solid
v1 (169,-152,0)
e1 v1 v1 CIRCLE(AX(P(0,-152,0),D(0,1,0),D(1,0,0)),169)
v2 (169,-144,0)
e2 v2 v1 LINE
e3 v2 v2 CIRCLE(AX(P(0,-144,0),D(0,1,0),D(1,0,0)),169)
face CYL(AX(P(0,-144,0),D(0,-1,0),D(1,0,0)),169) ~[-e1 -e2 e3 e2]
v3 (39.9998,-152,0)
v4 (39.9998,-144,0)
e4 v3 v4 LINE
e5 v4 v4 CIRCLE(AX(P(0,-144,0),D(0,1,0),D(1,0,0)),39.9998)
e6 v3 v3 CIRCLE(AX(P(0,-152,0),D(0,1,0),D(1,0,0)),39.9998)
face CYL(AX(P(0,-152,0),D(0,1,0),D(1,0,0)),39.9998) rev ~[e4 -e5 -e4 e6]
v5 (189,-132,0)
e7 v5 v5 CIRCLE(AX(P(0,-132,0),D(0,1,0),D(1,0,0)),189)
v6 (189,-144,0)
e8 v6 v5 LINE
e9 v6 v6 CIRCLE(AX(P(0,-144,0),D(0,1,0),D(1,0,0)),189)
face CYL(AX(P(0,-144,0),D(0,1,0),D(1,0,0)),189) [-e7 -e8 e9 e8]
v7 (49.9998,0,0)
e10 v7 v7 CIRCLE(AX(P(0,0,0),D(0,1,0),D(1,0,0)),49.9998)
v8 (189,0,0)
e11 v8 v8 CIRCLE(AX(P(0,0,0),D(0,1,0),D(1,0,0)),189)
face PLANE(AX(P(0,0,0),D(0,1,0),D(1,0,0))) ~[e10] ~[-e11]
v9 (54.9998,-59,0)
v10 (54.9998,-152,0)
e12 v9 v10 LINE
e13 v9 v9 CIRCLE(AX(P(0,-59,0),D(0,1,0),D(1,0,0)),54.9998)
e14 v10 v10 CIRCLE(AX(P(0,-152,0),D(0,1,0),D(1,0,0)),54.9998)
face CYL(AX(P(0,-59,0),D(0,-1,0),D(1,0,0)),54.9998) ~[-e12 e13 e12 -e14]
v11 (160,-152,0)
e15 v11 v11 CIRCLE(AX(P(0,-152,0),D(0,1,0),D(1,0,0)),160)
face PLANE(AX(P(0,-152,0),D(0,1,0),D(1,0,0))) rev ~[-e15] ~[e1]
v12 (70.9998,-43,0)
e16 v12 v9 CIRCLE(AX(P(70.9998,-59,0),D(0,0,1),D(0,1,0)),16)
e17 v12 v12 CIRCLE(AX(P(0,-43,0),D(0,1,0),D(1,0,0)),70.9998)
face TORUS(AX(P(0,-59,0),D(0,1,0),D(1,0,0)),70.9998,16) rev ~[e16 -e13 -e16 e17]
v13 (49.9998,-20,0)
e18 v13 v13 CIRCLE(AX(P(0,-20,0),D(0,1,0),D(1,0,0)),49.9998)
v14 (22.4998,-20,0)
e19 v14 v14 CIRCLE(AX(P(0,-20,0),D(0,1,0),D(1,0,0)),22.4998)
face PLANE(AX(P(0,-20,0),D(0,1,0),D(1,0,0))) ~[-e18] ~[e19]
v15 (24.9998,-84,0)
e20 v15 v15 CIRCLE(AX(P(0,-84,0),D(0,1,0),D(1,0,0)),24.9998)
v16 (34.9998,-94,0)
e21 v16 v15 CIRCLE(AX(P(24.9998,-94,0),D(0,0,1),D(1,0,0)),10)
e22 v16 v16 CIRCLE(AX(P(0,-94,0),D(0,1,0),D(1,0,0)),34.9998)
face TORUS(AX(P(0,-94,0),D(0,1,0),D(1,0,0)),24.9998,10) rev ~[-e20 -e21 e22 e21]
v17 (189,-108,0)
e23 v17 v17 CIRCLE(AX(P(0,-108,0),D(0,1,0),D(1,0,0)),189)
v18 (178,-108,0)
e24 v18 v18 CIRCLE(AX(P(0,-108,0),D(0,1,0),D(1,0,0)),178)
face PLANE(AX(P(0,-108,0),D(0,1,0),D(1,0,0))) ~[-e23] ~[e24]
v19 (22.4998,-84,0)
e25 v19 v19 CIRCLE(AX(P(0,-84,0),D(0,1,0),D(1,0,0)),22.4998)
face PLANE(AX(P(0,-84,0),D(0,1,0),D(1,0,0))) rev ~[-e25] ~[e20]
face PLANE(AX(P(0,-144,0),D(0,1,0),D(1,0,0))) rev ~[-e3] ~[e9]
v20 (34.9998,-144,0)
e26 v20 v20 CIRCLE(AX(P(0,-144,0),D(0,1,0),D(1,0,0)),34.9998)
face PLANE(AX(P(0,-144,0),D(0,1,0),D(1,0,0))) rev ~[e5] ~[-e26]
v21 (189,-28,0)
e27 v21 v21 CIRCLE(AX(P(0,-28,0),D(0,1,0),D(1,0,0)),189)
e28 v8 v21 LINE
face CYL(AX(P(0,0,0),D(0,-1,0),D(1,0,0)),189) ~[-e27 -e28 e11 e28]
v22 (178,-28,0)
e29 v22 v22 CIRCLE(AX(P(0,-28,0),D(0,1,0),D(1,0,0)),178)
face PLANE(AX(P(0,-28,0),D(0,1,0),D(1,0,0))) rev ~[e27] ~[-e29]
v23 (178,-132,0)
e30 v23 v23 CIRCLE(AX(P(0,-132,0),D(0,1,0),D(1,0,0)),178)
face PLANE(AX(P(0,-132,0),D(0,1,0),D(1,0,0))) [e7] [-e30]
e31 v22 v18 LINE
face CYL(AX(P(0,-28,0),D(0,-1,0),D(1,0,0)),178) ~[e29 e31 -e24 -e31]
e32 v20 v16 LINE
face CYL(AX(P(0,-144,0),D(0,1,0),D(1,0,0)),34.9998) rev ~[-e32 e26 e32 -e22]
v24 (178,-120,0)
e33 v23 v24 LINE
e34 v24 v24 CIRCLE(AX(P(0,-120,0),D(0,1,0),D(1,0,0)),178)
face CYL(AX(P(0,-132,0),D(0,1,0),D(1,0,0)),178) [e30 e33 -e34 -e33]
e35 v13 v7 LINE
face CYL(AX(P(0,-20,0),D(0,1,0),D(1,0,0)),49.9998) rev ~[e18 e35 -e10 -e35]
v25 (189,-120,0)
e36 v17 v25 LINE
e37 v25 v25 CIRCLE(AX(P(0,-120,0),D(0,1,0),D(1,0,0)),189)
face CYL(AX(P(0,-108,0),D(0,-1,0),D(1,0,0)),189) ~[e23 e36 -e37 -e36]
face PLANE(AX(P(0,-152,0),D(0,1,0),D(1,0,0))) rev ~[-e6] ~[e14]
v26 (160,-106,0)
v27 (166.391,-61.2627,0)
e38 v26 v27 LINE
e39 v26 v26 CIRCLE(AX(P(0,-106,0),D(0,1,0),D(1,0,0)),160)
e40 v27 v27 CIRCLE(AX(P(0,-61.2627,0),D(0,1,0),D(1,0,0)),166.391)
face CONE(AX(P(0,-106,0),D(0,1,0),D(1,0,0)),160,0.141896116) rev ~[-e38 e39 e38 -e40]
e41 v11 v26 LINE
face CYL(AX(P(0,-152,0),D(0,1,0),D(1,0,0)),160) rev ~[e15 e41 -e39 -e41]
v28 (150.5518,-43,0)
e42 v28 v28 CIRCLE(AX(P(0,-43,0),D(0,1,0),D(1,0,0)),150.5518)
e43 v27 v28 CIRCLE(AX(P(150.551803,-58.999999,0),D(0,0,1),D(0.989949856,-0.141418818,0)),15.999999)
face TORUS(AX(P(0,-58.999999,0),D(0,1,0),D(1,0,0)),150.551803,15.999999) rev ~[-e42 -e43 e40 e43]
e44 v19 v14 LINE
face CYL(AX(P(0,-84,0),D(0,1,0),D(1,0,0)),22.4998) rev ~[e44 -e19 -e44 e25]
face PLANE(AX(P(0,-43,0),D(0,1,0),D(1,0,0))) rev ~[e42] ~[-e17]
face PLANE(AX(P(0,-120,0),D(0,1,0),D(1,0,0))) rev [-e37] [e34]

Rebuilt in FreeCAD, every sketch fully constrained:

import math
import FreeCAD as App
import Part
import Sketcher

V = App.Vector
Q = App.Units.Quantity

doc = App.newDocument("Part")
body = doc.addObject("PartDesign::Body", "Body")

# Sketch on XY plane
sketch1 = body.newObject("Sketcher::SketchObject", "Sketch")
sketch1.AttachmentSupport = (doc.getObject("XY_Plane"), [""])
sketch1.MapMode = "FlatFace"
sketch1.addGeometry(Part.LineSegment(V(189, 0, 0), V(50, 0, 0)), False)
sketch1.addGeometry(Part.LineSegment(V(50, 0, 0), V(50, -20, 0)), False)
sketch1.addGeometry(Part.LineSegment(V(50, -20, 0), V(22.5, -20, 0)), False)
sketch1.addGeometry(Part.LineSegment(V(22.5, -20, 0), V(22.5, -84, 0)), False)
sketch1.addGeometry(Part.LineSegment(V(22.5, -84, 0), V(25, -84, 0)), False)
sketch1.addGeometry(Part.ArcOfCircle(Part.Circle(V(25, -94, 0), V(0, 0, 1), 10), math.radians(0), math.radians(90)), False)
sketch1.addGeometry(Part.LineSegment(V(35, -94, 0), V(35, -144, 0)), False)
sketch1.addGeometry(Part.LineSegment(V(35, -144, 0), V(40, -144, 0)), False)
sketch1.addGeometry(Part.LineSegment(V(40, -144, 0), V(40, -152, 0)), False)
sketch1.addGeometry(Part.LineSegment(V(40, -152, 0), V(55, -152, 0)), False)
sketch1.addGeometry(Part.LineSegment(V(55, -152, 0), V(55, -59, 0)), False)
sketch1.addGeometry(Part.ArcOfCircle(Part.Circle(V(71, -59, 0), V(0, 0, 1), 16), math.radians(90), math.radians(180)), False)
sketch1.addGeometry(Part.LineSegment(V(71, -43, 0), V(150.6, -43, 0)), False)
sketch1.addGeometry(Part.ArcOfCircle(Part.Circle(V(150.6, -59, 0), V(0, 0, 1), 16), math.radians(-8), math.radians(90)), False)
sketch1.addGeometry(Part.LineSegment(V(166.4, -61.3, 0), V(160, -106, 0)), False)
sketch1.addGeometry(Part.LineSegment(V(160, -106, 0), V(160, -152, 0)), False)
sketch1.addGeometry(Part.LineSegment(V(160, -152, 0), V(169, -152, 0)), False)
sketch1.addGeometry(Part.LineSegment(V(169, -152, 0), V(169, -144, 0)), False)
sketch1.addGeometry(Part.LineSegment(V(169, -144, 0), V(189, -144, 0)), False)
sketch1.addGeometry(Part.LineSegment(V(189, -144, 0), V(189, -132, 0)), False)
sketch1.addGeometry(Part.LineSegment(V(189, -132, 0), V(178, -132, 0)), False)
sketch1.addGeometry(Part.LineSegment(V(178, -132, 0), V(178, -120, 0)), False)
sketch1.addGeometry(Part.LineSegment(V(178, -120, 0), V(189, -120, 0)), False)
sketch1.addGeometry(Part.LineSegment(V(189, -120, 0), V(189, -108, 0)), False)
sketch1.addGeometry(Part.LineSegment(V(189, -108, 0), V(178, -108, 0)), False)
sketch1.addGeometry(Part.LineSegment(V(178, -108, 0), V(178, -28, 0)), False)
sketch1.addGeometry(Part.LineSegment(V(178, -28, 0), V(189, -28, 0)), False)
sketch1.addGeometry(Part.LineSegment(V(189, -28, 0), V(189, 0, 0)), False)
sketch1.addConstraint(Sketcher.Constraint("Coincident", 0, 2, 1, 1))
sketch1.addConstraint(Sketcher.Constraint("Coincident", 1, 2, 2, 1))
sketch1.addConstraint(Sketcher.Constraint("Coincident", 2, 2, 3, 1))
sketch1.addConstraint(Sketcher.Constraint("Coincident", 3, 2, 4, 1))
sketch1.addConstraint(Sketcher.Constraint("Tangent", 4, 2, 5, 2))
sketch1.addConstraint(Sketcher.Constraint("Tangent", 5, 1, 6, 1))
sketch1.addConstraint(Sketcher.Constraint("Coincident", 6, 2, 7, 1))
sketch1.addConstraint(Sketcher.Constraint("Coincident", 7, 2, 8, 1))
sketch1.addConstraint(Sketcher.Constraint("Coincident", 8, 2, 9, 1))
sketch1.addConstraint(Sketcher.Constraint("Coincident", 9, 2, 10, 1))
sketch1.addConstraint(Sketcher.Constraint("Tangent", 10, 2, 11, 2))
sketch1.addConstraint(Sketcher.Constraint("Tangent", 11, 1, 12, 1))
sketch1.addConstraint(Sketcher.Constraint("Tangent", 12, 2, 13, 2))
sketch1.addConstraint(Sketcher.Constraint("Tangent", 13, 1, 14, 1))
sketch1.addConstraint(Sketcher.Constraint("Coincident", 14, 2, 15, 1))
sketch1.addConstraint(Sketcher.Constraint("Coincident", 15, 2, 16, 1))
sketch1.addConstraint(Sketcher.Constraint("Coincident", 16, 2, 17, 1))
sketch1.addConstraint(Sketcher.Constraint("Coincident", 17, 2, 18, 1))
sketch1.addConstraint(Sketcher.Constraint("Coincident", 18, 2, 19, 1))
sketch1.addConstraint(Sketcher.Constraint("Coincident", 19, 2, 20, 1))
sketch1.addConstraint(Sketcher.Constraint("Coincident", 20, 2, 21, 1))
sketch1.addConstraint(Sketcher.Constraint("Coincident", 21, 2, 22, 1))
sketch1.addConstraint(Sketcher.Constraint("Coincident", 22, 2, 23, 1))
sketch1.addConstraint(Sketcher.Constraint("Coincident", 23, 2, 24, 1))
sketch1.addConstraint(Sketcher.Constraint("Coincident", 24, 2, 25, 1))
sketch1.addConstraint(Sketcher.Constraint("Coincident", 25, 2, 26, 1))
sketch1.addConstraint(Sketcher.Constraint("Coincident", 26, 2, 27, 1))
sketch1.addConstraint(Sketcher.Constraint("Coincident", 27, 2, 0, 1))
sketch1.addConstraint(Sketcher.Constraint("Horizontal", 0))
sketch1.addConstraint(Sketcher.Constraint("Vertical", 1))
sketch1.addConstraint(Sketcher.Constraint("Horizontal", 2))
sketch1.addConstraint(Sketcher.Constraint("Vertical", 3))
sketch1.addConstraint(Sketcher.Constraint("Horizontal", 4))
sketch1.addConstraint(Sketcher.Constraint("Vertical", 6))
sketch1.addConstraint(Sketcher.Constraint("Horizontal", 7))
sketch1.addConstraint(Sketcher.Constraint("Vertical", 8))
sketch1.addConstraint(Sketcher.Constraint("Horizontal", 9))
sketch1.addConstraint(Sketcher.Constraint("Vertical", 10))
sketch1.addConstraint(Sketcher.Constraint("Horizontal", 12))
sketch1.addConstraint(Sketcher.Constraint("Vertical", 15))
sketch1.addConstraint(Sketcher.Constraint("Horizontal", 16))
sketch1.addConstraint(Sketcher.Constraint("Vertical", 17))
sketch1.addConstraint(Sketcher.Constraint("Horizontal", 18))
sketch1.addConstraint(Sketcher.Constraint("Vertical", 19))
sketch1.addConstraint(Sketcher.Constraint("Horizontal", 20))
sketch1.addConstraint(Sketcher.Constraint("Vertical", 21))
sketch1.addConstraint(Sketcher.Constraint("Horizontal", 22))
sketch1.addConstraint(Sketcher.Constraint("Vertical", 23))
sketch1.addConstraint(Sketcher.Constraint("Horizontal", 24))
sketch1.addConstraint(Sketcher.Constraint("Vertical", 25))
sketch1.addConstraint(Sketcher.Constraint("Horizontal", 26))
sketch1.addConstraint(Sketcher.Constraint("Vertical", 27))
sketch1.addConstraint(Sketcher.Constraint("Equal", 11, 13))
sketch1.addConstraint(Sketcher.Constraint("PointOnObject", 0, 2, -1))
sketch1.addConstraint(Sketcher.Constraint("Horizontal", 9, 2, 15, 2))
sketch1.addConstraint(Sketcher.Constraint("Horizontal", 7, 2, 17, 2))
sketch1.addConstraint(Sketcher.Constraint("Vertical", 19, 2, 22, 2))
sketch1.addConstraint(Sketcher.Constraint("Vertical", 21, 2, 24, 2))
sketch1.addConstraint(Sketcher.Constraint("Vertical", 23, 2, 26, 2))
sketch1.addConstraint(Sketcher.Constraint("Equal", 18, 1))
sketch1.addConstraint(Sketcher.Constraint("Equal", 19, 21))
sketch1.addConstraint(Sketcher.Constraint("Equal", 21, 23))
sketch1.addConstraint(Sketcher.Constraint("Radius", 5, 10.0))
sketch1.addConstraint(Sketcher.Constraint("Radius", 11, 16.0))
sketch1.addConstraint(Sketcher.Constraint("DistanceX", 7, 1, 7, 2, 5.0))
sketch1.addConstraint(Sketcher.Constraint("DistanceX", 9, 1, 9, 2, 15.0))
sketch1.addConstraint(Sketcher.Constraint("DistanceX", 16, 1, 16, 2, 9.0))
sketch1.addConstraint(Sketcher.Constraint("DistanceX", 18, 1, 18, 2, 20.0))
sketch1.addConstraint(Sketcher.Constraint("DistanceX", 20, 2, 20, 1, 11.0))
sketch1.addConstraint(Sketcher.Constraint("DistanceY", 3, 2, 3, 1, 64.0))
sketch1.addConstraint(Sketcher.Constraint("DistanceY", 8, 2, 8, 1, 8.0))
sketch1.addConstraint(Sketcher.Constraint("DistanceY", 10, 1, 10, 2, 93.0))
sketch1.addConstraint(Sketcher.Constraint("DistanceY", 15, 2, 15, 1, 46.0))
sketch1.addConstraint(Sketcher.Constraint("DistanceY", 19, 1, 19, 2, 12.0))
sketch1.addConstraint(Sketcher.Constraint("DistanceY", 25, 1, 25, 2, 80.0))
sketch1.addConstraint(Sketcher.Constraint("DistanceY", 27, 1, 27, 2, 28.0))
sketch1.addConstraint(Sketcher.Constraint("DistanceX", 2, 2, 2, 1, 27.5))
sketch1.addConstraint(Sketcher.Constraint("DistanceX", -1, 1, 16, 2, 169.0))
sketch1.addConstraint(Sketcher.Constraint("DistanceX", 1, 2, 10, 2, 5.0))
sketch1.addConstraint(Sketcher.Constraint("Angle", 14, Q("-98.13 deg")))
sketch1.addConstraint(Sketcher.Constraint("DistanceX", 12, 1, 12, 2, 79.552))
revolution = body.newObject("PartDesign::Revolution", "Revolution")
revolution.Profile = sketch1
revolution.ReferenceAxis = (sketch1, ["V_Axis"])
revolution.Angle = 360

doc.recompute()
